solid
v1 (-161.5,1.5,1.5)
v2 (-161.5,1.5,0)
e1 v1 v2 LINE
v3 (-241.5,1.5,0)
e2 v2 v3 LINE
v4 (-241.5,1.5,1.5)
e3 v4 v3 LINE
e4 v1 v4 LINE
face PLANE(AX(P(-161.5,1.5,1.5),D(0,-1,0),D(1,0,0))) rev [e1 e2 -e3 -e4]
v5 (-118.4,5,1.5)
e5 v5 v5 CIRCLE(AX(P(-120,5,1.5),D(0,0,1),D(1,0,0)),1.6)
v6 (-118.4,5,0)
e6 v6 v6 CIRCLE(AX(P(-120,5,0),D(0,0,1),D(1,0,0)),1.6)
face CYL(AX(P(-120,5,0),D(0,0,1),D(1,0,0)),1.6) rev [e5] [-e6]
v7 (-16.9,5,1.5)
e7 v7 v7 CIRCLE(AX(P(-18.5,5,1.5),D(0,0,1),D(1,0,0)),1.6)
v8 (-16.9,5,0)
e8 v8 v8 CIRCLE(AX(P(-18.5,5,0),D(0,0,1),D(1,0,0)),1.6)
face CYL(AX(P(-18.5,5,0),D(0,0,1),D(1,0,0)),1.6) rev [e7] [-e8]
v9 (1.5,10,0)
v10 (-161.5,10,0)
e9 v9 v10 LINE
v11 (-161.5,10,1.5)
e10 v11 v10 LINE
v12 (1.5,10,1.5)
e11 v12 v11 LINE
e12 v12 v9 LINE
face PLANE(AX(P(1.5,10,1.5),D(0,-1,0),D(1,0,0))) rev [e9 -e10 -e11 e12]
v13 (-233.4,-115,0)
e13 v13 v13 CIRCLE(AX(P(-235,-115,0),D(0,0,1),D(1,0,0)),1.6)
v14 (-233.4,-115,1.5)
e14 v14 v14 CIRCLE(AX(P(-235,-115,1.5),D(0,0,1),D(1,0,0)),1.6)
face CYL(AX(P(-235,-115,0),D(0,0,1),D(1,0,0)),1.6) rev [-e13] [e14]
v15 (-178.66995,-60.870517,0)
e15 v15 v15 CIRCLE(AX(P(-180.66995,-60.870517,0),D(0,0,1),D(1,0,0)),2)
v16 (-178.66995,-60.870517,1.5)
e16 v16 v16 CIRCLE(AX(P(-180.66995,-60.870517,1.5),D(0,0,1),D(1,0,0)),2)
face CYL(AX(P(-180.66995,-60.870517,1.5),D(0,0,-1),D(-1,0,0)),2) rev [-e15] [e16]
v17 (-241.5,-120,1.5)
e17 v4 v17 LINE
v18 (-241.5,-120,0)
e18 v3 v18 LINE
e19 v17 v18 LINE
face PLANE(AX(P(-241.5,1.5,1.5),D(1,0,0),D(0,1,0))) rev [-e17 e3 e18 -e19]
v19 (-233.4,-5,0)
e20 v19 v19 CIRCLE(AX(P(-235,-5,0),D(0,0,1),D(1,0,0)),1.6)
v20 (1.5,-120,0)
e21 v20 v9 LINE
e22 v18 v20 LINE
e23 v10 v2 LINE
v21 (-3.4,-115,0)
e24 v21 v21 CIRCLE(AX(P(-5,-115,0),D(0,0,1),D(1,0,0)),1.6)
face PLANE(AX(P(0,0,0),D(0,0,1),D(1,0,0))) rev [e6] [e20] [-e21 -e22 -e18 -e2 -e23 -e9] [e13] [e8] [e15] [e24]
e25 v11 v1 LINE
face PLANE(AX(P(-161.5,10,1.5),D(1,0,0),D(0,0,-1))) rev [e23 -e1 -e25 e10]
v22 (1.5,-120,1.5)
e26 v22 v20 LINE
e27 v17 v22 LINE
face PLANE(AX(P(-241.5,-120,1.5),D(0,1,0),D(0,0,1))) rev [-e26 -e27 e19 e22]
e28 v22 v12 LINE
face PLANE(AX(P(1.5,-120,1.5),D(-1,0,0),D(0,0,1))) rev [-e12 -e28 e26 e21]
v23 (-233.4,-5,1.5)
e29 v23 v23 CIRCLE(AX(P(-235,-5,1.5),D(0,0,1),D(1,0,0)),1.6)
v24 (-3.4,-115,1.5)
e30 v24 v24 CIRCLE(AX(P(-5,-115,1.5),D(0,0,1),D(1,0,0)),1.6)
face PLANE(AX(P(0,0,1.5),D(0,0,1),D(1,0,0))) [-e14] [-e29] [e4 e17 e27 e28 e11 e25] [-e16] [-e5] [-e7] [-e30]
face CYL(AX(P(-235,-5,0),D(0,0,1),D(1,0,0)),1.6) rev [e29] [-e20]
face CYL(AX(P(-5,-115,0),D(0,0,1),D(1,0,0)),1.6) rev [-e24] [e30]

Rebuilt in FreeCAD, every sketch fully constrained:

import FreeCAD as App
import Part
import Sketcher
from FreeCAD import Vector


def add_polygon(sketch, points):
    """Adds a closed chain of lines whose ends are joined by coincident constraints."""
    first, n = sketch.GeometryCount, len(points)
    for a, b in zip(points, points[1:] + points[:1]):
        sketch.addGeometry(Part.LineSegment(App.Vector(*a, 0), App.Vector(*b, 0)), False)
    for i in range(n):
        sketch.addConstraint(Sketcher.Constraint("Coincident", first + i, 2, first + (i + 1) % n, 1))

doc = App.newDocument("Part")
body = doc.addObject("PartDesign::Body", "Body")

sketch1 = body.newObject("Sketcher::SketchObject", "Sketch")
sketch1.AttachmentSupport = (doc.getObject("XY_Plane"), [""])
sketch1.MapMode = "FlatFace"
add_polygon(sketch1, [(-241.5, -120), (1.5, -120), (1.5, 10), (-161.5, 10), (-161.5, 1.5), (-241.5, 1.5)])
sketch1.addGeometry(Part.Circle(Vector(-180.66995, -60.870517, 0), Vector(0, 0, 1), 2), False)
sketch1.addConstraint([
    Sketcher.Constraint("Horizontal", 0),
    Sketcher.Constraint("Vertical", 1),
    Sketcher.Constraint("Horizontal", 2),
    Sketcher.Constraint("Vertical", 3),
    Sketcher.Constraint("Horizontal", 4),
    Sketcher.Constraint("Vertical", 5),
    Sketcher.Constraint("Diameter", 6, 4.0),
    Sketcher.Constraint("DistanceX", 0, 1, 0, 2, 243.0),
    Sketcher.Constraint("DistanceX", 2, 2, 2, 1, 163.0),
    Sketcher.Constraint("DistanceY", 1, 1, 1, 2, 130.0),
    Sketcher.Constraint("DistanceY", 3, 2, 3, 1, 8.5),
    Sketcher.Constraint("DistanceY", 0, 2, -1, 1, 120.0),
    Sketcher.Constraint("DistanceX", -1, 1, 0, 2, 1.5),
    Sketcher.Constraint("DistanceX", 6, 3, -1, 1, 180.66995),
    Sketcher.Constraint("DistanceY", 6, 3, -1, 1, 60.870517),
])
pad1 = body.newObject("PartDesign::Pad", "Pad")
pad1.Profile = sketch1
pad1.Length = 1.5

sketch2 = body.newObject("Sketcher::SketchObject", "Sketch001")
sketch2.AttachmentSupport = (doc.getObject("XY_Plane"), [""])
sketch2.MapMode = "FlatFace"
sketch2.AttachmentOffset = App.Placement(Vector(0, 0, 1.5), App.Rotation())
sketch2.addGeometry([
    Part.Circle(Vector(-235, -5, 0), Vector(0, 0, 1), 1.6),
    Part.Circle(Vector(-235, -115, 0), Vector(0, 0, 1), 1.6),
    Part.Circle(Vector(-5, -115, 0), Vector(0, 0, 1), 1.6),
    Part.Circle(Vector(-120, 5, 0), Vector(0, 0, 1), 1.6),
    Part.Circle(Vector(-18.5, 5, 0), Vector(0, 0, 1), 1.6),
], False)
sketch2.addConstraint([
    Sketcher.Constraint("Equal", 0, 1),
    Sketcher.Constraint("Equal", 1, 2),
    Sketcher.Constraint("Equal", 2, 3),
    Sketcher.Constraint("Equal", 3, 4),
    Sketcher.Constraint("Horizontal", 1, 3, 2, 3),
    Sketcher.Constraint("Horizontal", 3, 3, 4, 3),
    Sketcher.Constraint("Vertical", 0, 3, 1, 3),
    Sketcher.Constraint("Diameter", 0, 3.2),
    Sketcher.Constraint("DistanceX", 0, 3, -1, 1, 235.0),
    Sketcher.Constraint("DistanceY", 0, 3, -1, 1, 5.0),
    Sketcher.Constraint("DistanceY", 1, 3, -1, 1, 115.0),
    Sketcher.Constraint("DistanceX", 2, 3, -1, 1, 5.0),
    Sketcher.Constraint("DistanceX", 3, 3, -1, 1, 120.0),
    Sketcher.Constraint("DistanceY", -1, 1, 3, 3, 5.0),
    Sketcher.Constraint("DistanceX", 4, 3, -1, 1, 18.5),
])
pocket1 = body.newObject("PartDesign::Pocket", "Pocket")
pocket1.Profile = sketch2
pocket1.Length = 1.5

doc.recompute()
